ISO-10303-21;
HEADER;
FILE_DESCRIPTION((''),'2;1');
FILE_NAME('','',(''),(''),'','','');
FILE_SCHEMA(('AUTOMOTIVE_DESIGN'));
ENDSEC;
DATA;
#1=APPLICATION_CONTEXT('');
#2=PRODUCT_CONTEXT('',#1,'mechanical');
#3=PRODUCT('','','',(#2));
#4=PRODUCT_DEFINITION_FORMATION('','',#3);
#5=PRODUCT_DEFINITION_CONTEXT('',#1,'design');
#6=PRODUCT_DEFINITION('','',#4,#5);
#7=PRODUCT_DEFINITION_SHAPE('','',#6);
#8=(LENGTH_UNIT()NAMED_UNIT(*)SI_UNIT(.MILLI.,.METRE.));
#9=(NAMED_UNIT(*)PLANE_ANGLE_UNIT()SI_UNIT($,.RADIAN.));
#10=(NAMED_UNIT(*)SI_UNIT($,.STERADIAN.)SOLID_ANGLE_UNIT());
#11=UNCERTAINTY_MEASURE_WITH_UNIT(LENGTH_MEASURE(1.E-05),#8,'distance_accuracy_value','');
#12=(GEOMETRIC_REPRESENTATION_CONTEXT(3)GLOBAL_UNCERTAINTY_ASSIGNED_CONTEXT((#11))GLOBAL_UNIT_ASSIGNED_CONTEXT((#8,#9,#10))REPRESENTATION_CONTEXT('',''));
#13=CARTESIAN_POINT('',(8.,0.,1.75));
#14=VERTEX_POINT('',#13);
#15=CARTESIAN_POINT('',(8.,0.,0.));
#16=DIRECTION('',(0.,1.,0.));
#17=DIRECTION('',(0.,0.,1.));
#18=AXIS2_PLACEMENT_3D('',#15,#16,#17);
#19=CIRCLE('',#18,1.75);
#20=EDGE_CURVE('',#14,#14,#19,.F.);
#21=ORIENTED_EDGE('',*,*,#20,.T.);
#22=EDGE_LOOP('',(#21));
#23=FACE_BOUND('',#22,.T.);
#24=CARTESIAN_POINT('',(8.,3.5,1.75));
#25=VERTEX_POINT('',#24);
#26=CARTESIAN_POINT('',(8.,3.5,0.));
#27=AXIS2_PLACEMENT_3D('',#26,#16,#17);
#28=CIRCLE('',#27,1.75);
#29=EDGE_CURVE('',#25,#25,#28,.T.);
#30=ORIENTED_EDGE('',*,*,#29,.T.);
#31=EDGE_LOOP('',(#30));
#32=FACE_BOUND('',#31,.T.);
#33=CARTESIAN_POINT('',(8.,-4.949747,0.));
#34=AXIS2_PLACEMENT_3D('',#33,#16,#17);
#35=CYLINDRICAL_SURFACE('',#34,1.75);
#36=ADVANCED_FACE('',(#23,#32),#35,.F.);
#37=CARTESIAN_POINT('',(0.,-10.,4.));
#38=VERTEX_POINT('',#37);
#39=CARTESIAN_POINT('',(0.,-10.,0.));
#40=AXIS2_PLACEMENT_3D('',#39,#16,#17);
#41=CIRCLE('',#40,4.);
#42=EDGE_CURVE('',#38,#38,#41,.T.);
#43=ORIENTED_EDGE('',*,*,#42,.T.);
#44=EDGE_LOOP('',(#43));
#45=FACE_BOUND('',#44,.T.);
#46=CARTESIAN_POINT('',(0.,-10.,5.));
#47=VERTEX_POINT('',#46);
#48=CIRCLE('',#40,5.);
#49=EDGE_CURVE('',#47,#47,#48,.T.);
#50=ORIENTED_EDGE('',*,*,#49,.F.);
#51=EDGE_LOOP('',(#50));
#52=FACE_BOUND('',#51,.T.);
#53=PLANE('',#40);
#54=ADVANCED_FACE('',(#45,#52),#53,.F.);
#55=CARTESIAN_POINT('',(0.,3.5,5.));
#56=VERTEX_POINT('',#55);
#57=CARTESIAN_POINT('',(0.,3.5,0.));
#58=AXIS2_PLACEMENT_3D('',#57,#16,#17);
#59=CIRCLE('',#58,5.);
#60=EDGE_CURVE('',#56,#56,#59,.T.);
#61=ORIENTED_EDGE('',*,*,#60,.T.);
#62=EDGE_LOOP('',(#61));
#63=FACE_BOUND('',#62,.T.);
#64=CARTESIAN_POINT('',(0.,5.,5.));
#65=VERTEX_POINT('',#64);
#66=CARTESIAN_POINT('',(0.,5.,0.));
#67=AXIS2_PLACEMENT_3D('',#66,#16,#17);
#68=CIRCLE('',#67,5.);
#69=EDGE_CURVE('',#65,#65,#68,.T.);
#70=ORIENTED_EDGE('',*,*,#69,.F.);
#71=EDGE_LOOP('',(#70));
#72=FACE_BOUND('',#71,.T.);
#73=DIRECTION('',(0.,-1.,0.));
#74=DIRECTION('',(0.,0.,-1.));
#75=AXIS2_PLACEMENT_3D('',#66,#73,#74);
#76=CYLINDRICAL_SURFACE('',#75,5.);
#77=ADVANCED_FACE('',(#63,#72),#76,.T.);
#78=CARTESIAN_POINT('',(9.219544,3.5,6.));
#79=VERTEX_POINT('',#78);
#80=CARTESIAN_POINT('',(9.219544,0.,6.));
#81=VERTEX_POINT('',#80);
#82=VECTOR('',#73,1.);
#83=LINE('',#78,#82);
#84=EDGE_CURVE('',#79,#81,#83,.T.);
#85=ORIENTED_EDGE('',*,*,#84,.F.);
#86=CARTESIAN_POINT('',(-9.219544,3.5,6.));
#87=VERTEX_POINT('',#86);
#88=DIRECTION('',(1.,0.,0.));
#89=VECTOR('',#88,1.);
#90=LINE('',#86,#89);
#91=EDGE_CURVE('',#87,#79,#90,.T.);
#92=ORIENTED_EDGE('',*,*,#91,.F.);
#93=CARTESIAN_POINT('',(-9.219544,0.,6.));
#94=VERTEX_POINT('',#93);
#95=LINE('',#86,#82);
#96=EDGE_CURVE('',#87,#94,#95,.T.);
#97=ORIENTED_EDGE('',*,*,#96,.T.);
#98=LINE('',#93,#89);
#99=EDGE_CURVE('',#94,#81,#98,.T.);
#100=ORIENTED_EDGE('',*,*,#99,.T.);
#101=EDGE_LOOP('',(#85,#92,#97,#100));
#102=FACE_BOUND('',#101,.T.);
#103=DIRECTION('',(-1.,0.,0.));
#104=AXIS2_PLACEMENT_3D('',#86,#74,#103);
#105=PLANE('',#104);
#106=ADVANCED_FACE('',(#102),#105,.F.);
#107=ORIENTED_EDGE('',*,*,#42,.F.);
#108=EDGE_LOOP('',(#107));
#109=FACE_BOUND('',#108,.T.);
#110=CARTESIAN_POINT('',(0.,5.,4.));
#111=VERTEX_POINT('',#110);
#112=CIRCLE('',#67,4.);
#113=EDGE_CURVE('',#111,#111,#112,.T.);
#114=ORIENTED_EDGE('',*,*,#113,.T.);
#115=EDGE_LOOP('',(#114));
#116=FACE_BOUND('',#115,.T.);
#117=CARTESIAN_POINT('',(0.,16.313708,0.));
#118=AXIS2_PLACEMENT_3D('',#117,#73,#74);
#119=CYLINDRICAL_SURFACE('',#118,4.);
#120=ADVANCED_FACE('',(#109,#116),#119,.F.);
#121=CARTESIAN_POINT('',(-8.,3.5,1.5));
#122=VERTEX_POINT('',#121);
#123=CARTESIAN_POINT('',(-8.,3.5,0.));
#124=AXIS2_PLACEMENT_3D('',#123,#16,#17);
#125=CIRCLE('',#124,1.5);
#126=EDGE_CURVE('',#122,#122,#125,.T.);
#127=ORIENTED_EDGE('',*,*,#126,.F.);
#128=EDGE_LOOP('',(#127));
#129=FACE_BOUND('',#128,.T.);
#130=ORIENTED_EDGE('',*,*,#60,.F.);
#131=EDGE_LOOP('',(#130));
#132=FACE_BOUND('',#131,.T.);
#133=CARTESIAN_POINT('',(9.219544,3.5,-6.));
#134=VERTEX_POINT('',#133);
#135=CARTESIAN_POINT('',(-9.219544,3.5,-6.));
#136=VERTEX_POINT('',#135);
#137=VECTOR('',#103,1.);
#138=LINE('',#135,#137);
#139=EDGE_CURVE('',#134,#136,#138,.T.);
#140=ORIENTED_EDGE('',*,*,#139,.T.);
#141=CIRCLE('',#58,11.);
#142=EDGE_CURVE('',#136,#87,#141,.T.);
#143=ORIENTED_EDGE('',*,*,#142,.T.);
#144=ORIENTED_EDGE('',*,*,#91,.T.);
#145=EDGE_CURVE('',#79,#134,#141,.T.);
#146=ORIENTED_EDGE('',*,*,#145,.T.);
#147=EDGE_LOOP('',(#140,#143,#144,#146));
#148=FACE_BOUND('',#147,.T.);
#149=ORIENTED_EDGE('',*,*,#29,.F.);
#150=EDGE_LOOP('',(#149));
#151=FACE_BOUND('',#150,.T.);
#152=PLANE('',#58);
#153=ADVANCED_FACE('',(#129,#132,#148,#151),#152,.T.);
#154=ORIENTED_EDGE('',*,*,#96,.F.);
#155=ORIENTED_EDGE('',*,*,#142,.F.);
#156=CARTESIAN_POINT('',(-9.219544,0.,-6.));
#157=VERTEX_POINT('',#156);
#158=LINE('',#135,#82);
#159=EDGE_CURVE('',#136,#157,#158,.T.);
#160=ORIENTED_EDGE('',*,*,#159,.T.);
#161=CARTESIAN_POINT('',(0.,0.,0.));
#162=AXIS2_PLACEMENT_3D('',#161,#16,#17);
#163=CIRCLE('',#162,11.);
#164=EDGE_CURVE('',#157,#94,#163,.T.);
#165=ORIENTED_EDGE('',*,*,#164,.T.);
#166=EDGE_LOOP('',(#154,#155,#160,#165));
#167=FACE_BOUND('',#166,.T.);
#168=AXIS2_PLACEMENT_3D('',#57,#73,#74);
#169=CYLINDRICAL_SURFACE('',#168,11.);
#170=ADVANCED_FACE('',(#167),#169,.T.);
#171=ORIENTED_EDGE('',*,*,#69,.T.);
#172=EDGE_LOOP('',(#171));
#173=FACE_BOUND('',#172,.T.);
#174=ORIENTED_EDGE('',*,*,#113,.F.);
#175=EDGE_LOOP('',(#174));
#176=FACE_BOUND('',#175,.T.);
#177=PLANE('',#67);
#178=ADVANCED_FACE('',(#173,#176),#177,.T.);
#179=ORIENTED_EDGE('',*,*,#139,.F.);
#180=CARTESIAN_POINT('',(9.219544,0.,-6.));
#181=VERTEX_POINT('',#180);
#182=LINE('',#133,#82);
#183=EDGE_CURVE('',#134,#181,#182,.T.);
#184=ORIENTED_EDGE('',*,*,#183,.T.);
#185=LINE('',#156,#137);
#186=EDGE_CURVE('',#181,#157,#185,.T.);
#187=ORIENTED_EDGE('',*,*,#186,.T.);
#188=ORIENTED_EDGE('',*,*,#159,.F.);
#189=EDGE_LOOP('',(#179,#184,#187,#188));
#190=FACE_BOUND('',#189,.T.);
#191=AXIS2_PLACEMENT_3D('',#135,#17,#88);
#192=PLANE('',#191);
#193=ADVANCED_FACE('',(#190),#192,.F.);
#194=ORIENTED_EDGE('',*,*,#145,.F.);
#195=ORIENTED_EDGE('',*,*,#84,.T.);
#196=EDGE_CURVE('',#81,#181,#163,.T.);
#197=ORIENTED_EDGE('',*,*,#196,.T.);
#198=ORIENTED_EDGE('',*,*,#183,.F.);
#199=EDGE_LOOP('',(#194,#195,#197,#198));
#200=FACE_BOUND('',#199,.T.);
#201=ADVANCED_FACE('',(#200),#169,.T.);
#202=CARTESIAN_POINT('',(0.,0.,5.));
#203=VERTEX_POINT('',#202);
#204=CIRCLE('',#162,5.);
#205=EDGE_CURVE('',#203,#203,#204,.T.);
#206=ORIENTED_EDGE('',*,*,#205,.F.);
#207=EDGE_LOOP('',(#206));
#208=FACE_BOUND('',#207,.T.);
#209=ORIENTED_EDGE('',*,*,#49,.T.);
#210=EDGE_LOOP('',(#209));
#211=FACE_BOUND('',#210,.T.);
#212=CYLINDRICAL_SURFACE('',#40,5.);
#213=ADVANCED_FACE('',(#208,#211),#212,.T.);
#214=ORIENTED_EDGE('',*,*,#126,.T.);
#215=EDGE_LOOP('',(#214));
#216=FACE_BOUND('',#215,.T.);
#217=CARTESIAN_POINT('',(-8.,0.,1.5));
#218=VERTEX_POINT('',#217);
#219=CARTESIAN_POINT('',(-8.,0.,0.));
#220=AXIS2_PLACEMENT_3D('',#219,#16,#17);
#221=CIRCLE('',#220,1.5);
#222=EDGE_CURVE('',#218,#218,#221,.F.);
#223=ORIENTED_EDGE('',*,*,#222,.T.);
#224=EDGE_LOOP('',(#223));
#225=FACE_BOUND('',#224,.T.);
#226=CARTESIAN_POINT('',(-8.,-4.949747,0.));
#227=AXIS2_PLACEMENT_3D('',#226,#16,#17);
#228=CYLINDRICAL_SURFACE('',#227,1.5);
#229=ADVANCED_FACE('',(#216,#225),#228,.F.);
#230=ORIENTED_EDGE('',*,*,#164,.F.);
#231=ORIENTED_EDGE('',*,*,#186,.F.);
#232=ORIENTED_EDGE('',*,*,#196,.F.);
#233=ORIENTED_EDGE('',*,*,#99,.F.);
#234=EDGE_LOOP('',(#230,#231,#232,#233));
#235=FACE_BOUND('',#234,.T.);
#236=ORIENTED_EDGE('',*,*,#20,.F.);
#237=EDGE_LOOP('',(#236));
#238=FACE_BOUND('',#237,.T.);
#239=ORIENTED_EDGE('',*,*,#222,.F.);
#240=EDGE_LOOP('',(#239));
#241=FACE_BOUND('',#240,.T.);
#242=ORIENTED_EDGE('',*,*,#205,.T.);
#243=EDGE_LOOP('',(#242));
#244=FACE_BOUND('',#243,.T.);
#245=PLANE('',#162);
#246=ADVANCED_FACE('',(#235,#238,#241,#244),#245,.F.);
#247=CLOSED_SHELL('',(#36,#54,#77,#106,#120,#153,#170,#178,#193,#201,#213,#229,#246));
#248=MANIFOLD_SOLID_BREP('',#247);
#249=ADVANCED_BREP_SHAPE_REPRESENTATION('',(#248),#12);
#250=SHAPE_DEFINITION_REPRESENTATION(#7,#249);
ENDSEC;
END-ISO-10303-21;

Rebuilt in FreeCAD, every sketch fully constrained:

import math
import FreeCAD as App
import Part
import Sketcher
from FreeCAD import Vector

doc = App.newDocument("Part")
body = doc.addObject("PartDesign::Body", "Body")

# Sketch on XZ plane
sketch1 = body.newObject("Sketcher::SketchObject", "Sketch")
sketch1.AttachmentSupport = (doc.getObject("XZ_Plane"), [""])
sketch1.MapMode = "FlatFace"
sketch1.addGeometry([
    Part.LineSegment(Vector(9.219544, -6, 0), Vector(-9.219544, -6, 0)),
    Part.ArcOfCircle(Part.Circle(Vector(0, 0, 0), Vector(0, 0, 1), 11), math.radians(146.944269), math.radians(213.055731)),
    Part.LineSegment(Vector(-9.219544, 6, 0), Vector(9.219544, 6, 0)),
    Part.ArcOfCircle(Part.Circle(Vector(0, 0, 0), Vector(0, 0, 1), 11), math.radians(-33.055731), math.radians(33.055731)),
], False)
sketch1.addConstraint([
    Sketcher.Constraint("Coincident", 0, 2, 1, 2),
    Sketcher.Constraint("Coincident", 1, 1, 2, 1),
    Sketcher.Constraint("Coincident", 2, 2, 3, 2),
    Sketcher.Constraint("Coincident", 3, 1, 0, 1),
    Sketcher.Constraint("Horizontal", 0),
    Sketcher.Constraint("Horizontal", 2),
    Sketcher.Constraint("Coincident", 1, 3, -1, 1),
    Sketcher.Constraint("Coincident", 3, 3, -1, 1),
    Sketcher.Constraint("Equal", 1, 3),
    Sketcher.Constraint("Vertical", 0, 2, 1, 1),
    Sketcher.Constraint("Radius", 1, 11.0),
    Sketcher.Constraint("DistanceY", 0, 2, -1, 1, 6.0),
])
pad1 = body.newObject("PartDesign::Pad", "Pad")
pad1.Profile = sketch1
pad1.Length = 3.5
pad1.Reversed = True

# Sketch on XZ plane
sketch2 = body.newObject("Sketcher::SketchObject", "Sketch001")
sketch2.AttachmentSupport = (doc.getObject("XZ_Plane"), [""])
sketch2.MapMode = "FlatFace"
sketch2.AttachmentOffset = App.Placement(Vector(0, 0, -3.5), App.Rotation())
sketch2.addGeometry([
    Part.Circle(Vector(8, 0, 0), Vector(0, 0, 1), 1.75),
    Part.Circle(Vector(-8, 0, 0), Vector(0, 0, 1), 1.5),
], False)
sketch2.addConstraint([
    Sketcher.Constraint("Symmetric", 0, 3, 1, 3, -1, 1),
    Sketcher.Constraint("PointOnObject", 0, 3, -1),
    Sketcher.Constraint("Diameter", 1, 3.0),
    Sketcher.Constraint("Diameter", 0, 3.5),
    Sketcher.Constraint("DistanceX", -1, 1, 0, 3, 8.0),
])
pocket1 = body.newObject("PartDesign::Pocket", "Pocket")
pocket1.Profile = sketch2
pocket1.Length = 3.5
pocket1.Reversed = True

# Sketch on XZ plane
sketch3 = body.newObject("Sketcher::SketchObject", "Sketch002")
sketch3.AttachmentSupport = (doc.getObject("XZ_Plane"), [""])
sketch3.MapMode = "FlatFace"
sketch3.addGeometry(Part.Circle(Vector(0, 0, 0), Vector(0, 0, 1), 5), False)
sketch3.addConstraint([
    Sketcher.Constraint("Coincident", 0, 3, -1, 1),
    Sketcher.Constraint("Diameter", 0, 10.0),
])
pad2 = body.newObject("PartDesign::Pad", "Pad001")
pad2.Profile = sketch3
pad2.Length = 10

# Sketch on XZ plane
sketch4 = body.newObject("Sketcher::SketchObject", "Sketch003")
sketch4.AttachmentSupport = (doc.getObject("XZ_Plane"), [""])
sketch4.MapMode = "FlatFace"
sketch4.AttachmentOffset = App.Placement(Vector(0, 0, -5), App.Rotation())
sketch4.addGeometry(Part.Circle(Vector(0, 0, 0), Vector(0, 0, 1), 5), False)
sketch4.addConstraint([
    Sketcher.Constraint("Coincident", 0, 3, -1, 1),
    Sketcher.Constraint("Diameter", 0, 10.0),
])
pad3 = body.newObject("PartDesign::Pad", "Pad002")
pad3.Profile = sketch4
pad3.Length = 1.5

# Sketch on XZ plane
sketch5 = body.newObject("Sketcher::SketchObject", "Sketch004")
sketch5.AttachmentSupport = (doc.getObject("XZ_Plane"), [""])
sketch5.MapMode = "FlatFace"
sketch5.AttachmentOffset = App.Placement(Vector(0, 0, 10), App.Rotation())
sketch5.addGeometry(Part.Circle(Vector(0, 0, 0), Vector(0, 0, 1), 4), False)
sketch5.addConstraint([
    Sketcher.Constraint("Coincident", 0, 3, -1, 1),
    Sketcher.Constraint("Diameter", 0, 8.0),
])
pocket2 = body.newObject("PartDesign::Pocket", "Pocket001")
pocket2.Profile = sketch5
pocket2.Length = 15

doc.recompute()
